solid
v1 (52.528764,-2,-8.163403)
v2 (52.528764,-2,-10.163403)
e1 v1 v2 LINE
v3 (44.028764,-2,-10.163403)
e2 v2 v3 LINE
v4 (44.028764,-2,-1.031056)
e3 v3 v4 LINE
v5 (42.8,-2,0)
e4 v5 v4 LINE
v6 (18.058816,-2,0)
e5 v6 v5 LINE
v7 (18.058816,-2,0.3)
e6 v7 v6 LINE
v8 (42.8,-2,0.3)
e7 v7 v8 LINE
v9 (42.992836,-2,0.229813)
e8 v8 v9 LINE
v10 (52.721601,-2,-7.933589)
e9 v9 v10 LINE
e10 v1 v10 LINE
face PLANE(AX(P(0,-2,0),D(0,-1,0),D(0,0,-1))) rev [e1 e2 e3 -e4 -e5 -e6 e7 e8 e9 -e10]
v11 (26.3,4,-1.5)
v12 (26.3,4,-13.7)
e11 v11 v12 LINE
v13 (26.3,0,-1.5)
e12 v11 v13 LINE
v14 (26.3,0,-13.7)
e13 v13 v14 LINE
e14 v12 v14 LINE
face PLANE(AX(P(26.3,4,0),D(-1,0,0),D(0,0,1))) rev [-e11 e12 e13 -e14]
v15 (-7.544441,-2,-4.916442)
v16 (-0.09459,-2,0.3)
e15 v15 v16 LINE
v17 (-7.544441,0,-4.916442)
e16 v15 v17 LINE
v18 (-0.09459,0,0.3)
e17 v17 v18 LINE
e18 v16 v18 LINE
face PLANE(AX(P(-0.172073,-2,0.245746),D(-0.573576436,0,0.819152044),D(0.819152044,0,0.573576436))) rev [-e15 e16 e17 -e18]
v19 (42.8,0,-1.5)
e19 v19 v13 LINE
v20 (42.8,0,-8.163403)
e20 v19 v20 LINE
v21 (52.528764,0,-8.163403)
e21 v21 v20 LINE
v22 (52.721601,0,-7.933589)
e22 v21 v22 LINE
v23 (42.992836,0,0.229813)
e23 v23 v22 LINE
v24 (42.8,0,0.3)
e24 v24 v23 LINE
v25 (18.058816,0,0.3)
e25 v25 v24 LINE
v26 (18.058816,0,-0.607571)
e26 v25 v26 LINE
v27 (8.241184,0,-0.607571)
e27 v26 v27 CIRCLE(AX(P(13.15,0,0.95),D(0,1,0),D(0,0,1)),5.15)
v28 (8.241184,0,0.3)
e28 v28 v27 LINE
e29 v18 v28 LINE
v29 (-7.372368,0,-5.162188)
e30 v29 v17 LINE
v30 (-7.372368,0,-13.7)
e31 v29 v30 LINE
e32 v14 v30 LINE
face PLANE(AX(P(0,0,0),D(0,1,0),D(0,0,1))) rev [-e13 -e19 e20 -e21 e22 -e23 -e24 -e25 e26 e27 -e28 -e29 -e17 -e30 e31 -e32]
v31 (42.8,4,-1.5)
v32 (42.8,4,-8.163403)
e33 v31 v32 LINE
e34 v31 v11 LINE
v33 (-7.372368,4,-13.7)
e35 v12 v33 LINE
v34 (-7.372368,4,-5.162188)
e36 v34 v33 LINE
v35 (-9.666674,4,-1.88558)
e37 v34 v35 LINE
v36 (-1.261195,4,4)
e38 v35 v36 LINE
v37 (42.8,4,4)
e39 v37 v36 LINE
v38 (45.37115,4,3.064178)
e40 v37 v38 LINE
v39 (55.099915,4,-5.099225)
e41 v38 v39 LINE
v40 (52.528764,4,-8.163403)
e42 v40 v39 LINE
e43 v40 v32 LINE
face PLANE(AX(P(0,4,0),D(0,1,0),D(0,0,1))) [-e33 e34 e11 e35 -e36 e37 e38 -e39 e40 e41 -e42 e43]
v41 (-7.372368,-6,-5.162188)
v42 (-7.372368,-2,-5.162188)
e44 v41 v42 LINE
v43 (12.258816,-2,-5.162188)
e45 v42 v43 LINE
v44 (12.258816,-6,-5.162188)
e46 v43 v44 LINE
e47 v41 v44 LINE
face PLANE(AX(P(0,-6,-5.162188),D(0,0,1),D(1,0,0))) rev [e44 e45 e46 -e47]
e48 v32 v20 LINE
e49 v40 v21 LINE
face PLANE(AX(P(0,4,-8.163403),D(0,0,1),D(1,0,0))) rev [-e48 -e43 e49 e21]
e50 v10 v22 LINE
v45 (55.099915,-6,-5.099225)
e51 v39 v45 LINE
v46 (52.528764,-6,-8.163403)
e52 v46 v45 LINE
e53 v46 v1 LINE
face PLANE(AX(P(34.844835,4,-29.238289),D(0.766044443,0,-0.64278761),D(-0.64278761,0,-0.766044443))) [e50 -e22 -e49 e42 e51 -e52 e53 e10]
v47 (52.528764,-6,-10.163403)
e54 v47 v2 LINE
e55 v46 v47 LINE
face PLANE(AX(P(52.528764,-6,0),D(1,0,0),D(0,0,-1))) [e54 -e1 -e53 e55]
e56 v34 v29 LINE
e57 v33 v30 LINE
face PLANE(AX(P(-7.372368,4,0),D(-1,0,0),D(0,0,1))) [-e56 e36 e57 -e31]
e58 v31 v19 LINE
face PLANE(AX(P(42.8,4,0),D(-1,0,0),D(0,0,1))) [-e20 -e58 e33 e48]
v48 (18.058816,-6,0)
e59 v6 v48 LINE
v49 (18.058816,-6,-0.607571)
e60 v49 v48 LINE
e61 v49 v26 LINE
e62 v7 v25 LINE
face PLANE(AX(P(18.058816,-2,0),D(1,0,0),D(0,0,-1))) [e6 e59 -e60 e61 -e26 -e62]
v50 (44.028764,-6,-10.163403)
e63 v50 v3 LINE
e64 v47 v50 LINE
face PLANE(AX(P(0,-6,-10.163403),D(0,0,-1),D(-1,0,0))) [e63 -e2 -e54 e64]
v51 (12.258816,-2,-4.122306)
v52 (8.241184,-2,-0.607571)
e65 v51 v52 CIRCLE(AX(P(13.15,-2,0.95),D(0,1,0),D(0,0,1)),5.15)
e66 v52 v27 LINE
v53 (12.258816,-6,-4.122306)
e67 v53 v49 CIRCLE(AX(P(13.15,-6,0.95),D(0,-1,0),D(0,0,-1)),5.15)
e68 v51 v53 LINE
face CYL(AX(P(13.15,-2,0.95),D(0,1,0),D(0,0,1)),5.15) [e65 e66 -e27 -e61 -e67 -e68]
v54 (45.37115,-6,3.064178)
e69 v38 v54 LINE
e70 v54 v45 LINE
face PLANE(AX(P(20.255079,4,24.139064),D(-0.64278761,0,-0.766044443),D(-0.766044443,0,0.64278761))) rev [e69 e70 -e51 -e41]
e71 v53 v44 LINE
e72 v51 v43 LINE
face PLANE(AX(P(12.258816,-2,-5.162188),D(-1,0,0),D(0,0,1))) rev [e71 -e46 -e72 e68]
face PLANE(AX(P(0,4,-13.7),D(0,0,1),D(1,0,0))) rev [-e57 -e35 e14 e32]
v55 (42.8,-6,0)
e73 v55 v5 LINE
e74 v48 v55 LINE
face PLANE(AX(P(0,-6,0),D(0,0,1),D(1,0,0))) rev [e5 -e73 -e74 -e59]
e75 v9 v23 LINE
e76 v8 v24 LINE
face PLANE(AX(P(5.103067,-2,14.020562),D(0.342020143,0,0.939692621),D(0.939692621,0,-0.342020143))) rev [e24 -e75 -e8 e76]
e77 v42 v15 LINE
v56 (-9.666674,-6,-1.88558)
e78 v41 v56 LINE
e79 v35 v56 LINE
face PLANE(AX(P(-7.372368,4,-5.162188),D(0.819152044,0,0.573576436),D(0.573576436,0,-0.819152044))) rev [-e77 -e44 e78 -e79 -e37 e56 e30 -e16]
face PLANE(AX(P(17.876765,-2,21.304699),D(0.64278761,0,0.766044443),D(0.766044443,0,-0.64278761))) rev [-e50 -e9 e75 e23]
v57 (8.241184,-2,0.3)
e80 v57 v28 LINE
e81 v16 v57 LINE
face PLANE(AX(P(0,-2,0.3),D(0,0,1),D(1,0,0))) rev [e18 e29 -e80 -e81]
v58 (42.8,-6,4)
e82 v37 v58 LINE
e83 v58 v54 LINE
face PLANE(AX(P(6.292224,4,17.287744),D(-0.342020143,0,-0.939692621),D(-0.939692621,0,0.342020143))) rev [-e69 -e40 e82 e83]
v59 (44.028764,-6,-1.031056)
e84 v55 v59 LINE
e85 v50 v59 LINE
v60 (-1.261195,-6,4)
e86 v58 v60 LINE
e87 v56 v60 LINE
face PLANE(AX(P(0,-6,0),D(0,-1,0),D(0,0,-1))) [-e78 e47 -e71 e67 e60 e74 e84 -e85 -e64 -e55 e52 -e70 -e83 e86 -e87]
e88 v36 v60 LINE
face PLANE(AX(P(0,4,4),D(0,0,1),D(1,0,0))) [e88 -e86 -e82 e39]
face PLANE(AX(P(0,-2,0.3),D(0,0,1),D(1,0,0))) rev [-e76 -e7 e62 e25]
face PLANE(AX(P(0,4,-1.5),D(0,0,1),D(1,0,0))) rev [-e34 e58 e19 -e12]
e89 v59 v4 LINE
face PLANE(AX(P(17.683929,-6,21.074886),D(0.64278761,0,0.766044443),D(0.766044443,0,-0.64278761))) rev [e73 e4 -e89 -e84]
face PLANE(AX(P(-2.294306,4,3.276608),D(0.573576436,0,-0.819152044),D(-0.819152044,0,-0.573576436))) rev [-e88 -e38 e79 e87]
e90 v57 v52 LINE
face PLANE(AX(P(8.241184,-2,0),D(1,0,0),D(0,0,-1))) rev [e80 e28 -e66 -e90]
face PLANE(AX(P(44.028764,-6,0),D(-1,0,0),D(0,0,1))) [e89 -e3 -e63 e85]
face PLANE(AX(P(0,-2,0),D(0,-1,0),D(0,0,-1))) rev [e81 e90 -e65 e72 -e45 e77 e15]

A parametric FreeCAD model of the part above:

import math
import FreeCAD as App
import Part
import Sketcher
from FreeCAD import Vector
Q = App.Units.Quantity

doc = App.newDocument("Part")
params = doc.addObject("Spreadsheet::Sheet", "Params")
for row, (alias, value) in enumerate([
    ("sketch1_width", "16.5 mm"),
    ("sketch1_height", "12.2 mm"),
    ("sketch1_length", "0.3 mm"),
    ("sketch1_length2", "3.7 mm"),
    ("sketch1_length3", "12.7 mm"),
    ("pad1_length", "4 mm"),
    ("sketch2_radius", "5.15 mm"),
    ("sketch2_length", "3.7 mm"),
    ("sketch2_length2", "12.7 mm"),
    ("pad2_length", "2 mm"),
    ("sketch3_height", "2 mm"),
    ("sketch3_width", "8.5 mm"),
    ("sketch3_length", "0.3 mm"),
    ("sketch3_length2", "3.7 mm"),
    ("sketch3_length3", "12.7 mm"),
    ("pad3_length", "4 mm"),
    ("sketch4_width", "6 mm"),
    ("pocket1_length", "4 mm"),
    ("sketch5_radius", "5.15 mm"),
    ("sketch5_width", "5.8 mm"),
    ("pad4_length", "4 mm"),
], start=1):
    params.set(f"A{row}", alias)
    params.set(f"B{row}", "=" + value)
    params.setAlias(f"B{row}", alias)

body = doc.addObject("PartDesign::Body", "Body")

sketch1 = body.newObject("Sketcher::SketchObject", "Sketch")
sketch1.AttachmentSupport = (doc.getObject("XZ_Plane"), [""])
sketch1.MapMode = "FlatFace"
sketch1.addGeometry([
    Part.LineSegment(Vector(52.53, -8.16, 0), Vector(42.8, -8.16, 0)),
    Part.LineSegment(Vector(42.8, -8.16, 0), Vector(42.8, -1.5, 0)),
    Part.LineSegment(Vector(42.8, -1.5, 0), Vector(26.3, -1.5, 0)),
    Part.LineSegment(Vector(26.3, -1.5, 0), Vector(26.3, -13.7, 0)),
    Part.LineSegment(Vector(26.3, -13.7, 0), Vector(-7.37, -13.7, 0)),
    Part.LineSegment(Vector(-7.37, -13.7, 0), Vector(-7.37, -5.16, 0)),
    Part.LineSegment(Vector(-7.37, -5.16, 0), Vector(-7.54, -4.92, 0)),
    Part.LineSegment(Vector(-7.54, -4.92, 0), Vector(-9.67, -1.89, 0)),
    Part.LineSegment(Vector(-9.67, -1.89, 0), Vector(-1.26, 4, 0)),
    Part.LineSegment(Vector(-1.26, 4, 0), Vector(42.8, 4, 0)),
    Part.LineSegment(Vector(42.8, 4, 0), Vector(45.37, 3.06, 0)),
    Part.LineSegment(Vector(45.37, 3.06, 0), Vector(55.1, -5.1, 0)),
    Part.LineSegment(Vector(55.1, -5.1, 0), Vector(52.72, -7.93, 0)),
    Part.LineSegment(Vector(52.72, -7.93, 0), Vector(52.53, -8.16, 0)),
], False)
sketch1.addConstraint([
    Sketcher.Constraint("Coincident", 0, 2, 1, 1),
    Sketcher.Constraint("Coincident", 1, 2, 2, 1),
    Sketcher.Constraint("Coincident", 2, 2, 3, 1),
    Sketcher.Constraint("Coincident", 3, 2, 4, 1),
    Sketcher.Constraint("Coincident", 4, 2, 5, 1),
    Sketcher.Constraint("Coincident", 5, 2, 6, 1),
    Sketcher.Constraint("Coincident", 6, 2, 7, 1),
    Sketcher.Constraint("Coincident", 7, 2, 8, 1),
    Sketcher.Constraint("Coincident", 8, 2, 9, 1),
    Sketcher.Constraint("Coincident", 9, 2, 10, 1),
    Sketcher.Constraint("Coincident", 10, 2, 11, 1),
    Sketcher.Constraint("Coincident", 11, 2, 12, 1),
    Sketcher.Constraint("Coincident", 12, 2, 13, 1),
    Sketcher.Constraint("Coincident", 13, 2, 0, 1),
    Sketcher.Constraint("Horizontal", 0),
    Sketcher.Constraint("Vertical", 1),
    Sketcher.Constraint("Horizontal", 2),
    Sketcher.Constraint("Vertical", 3),
    Sketcher.Constraint("Horizontal", 4),
    Sketcher.Constraint("Vertical", 5),
    Sketcher.Constraint("Horizontal", 9),
    Sketcher.Constraint("Parallel", 6, 7),
    Sketcher.Constraint("Perpendicular", 7, 8),
    Sketcher.Constraint("Perpendicular", 11, 12),
    Sketcher.Constraint("Parallel", 12, 13),
    Sketcher.Constraint("Vertical", 1, 2, 9, 2),
    Sketcher.Constraint("Equal", 7, 12),
    Sketcher.Constraint("Equal", 6, 13),
    Sketcher.Constraint("Angle", 6, Q("125 deg")),
    Sketcher.Constraint("Angle", 10, Q("-20 deg")),
    Sketcher.Constraint("Angle", 11, Q("-40 deg")),
    Sketcher.Constraint("DistanceX", 2, 2, 2, 1, 16.5),
    Sketcher.Constraint("DistanceY", 3, 2, 3, 1, 12.2),
    Sketcher.Constraint("DistanceY", -1, 1, 8, 2, 4.0),
    Sketcher.Constraint("Distance", 6, 0.3),
    Sketcher.Constraint("Distance", 7, 3.7),
    Sketcher.Constraint("Distance", 11, 12.7),
    Sketcher.Constraint("DistanceX", -1, 1, 0, 2, 42.8),
    Sketcher.Constraint("DistanceY", 1, 2, -1, 1, 1.5),
    Sketcher.Constraint("DistanceX", 4, 2, 4, 1, 33.672368),
    Sketcher.Constraint("DistanceX", -1, 1, 12, 2, 52.721601),
    Sketcher.Constraint("DistanceX", 9, 1, 9, 2, 44.061195),
])
sketch1.setExpression("Constraints[31]", "Params.sketch1_width")
sketch1.setExpression("Constraints[32]", "Params.sketch1_height")
sketch1.setExpression("Constraints[34]", "Params.sketch1_length")
sketch1.setExpression("Constraints[35]", "Params.sketch1_length2")
sketch1.setExpression("Constraints[36]", "Params.sketch1_length3")
pad1 = body.newObject("PartDesign::Pad", "Pad")
pad1.Profile = sketch1
pad1.setExpression("Length", "Params.pad1_length")
pad1.Reversed = True

sketch2 = body.newObject("Sketcher::SketchObject", "Sketch001")
sketch2.AttachmentSupport = (doc.getObject("XZ_Plane"), [""])
sketch2.MapMode = "FlatFace"
sketch2.addGeometry([
    Part.LineSegment(Vector(-0.09, 0.3, 0), Vector(-7.54, -4.92, 0)),
    Part.LineSegment(Vector(-7.54, -4.92, 0), Vector(-9.67, -1.89, 0)),
    Part.LineSegment(Vector(-9.67, -1.89, 0), Vector(-1.26, 4, 0)),
    Part.LineSegment(Vector(-1.26, 4, 0), Vector(42.8, 4, 0)),
    Part.LineSegment(Vector(42.8, 4, 0), Vector(45.37, 3.06, 0)),
    Part.LineSegment(Vector(45.37, 3.06, 0), Vector(55.1, -5.1, 0)),
    Part.LineSegment(Vector(55.1, -5.1, 0), Vector(52.72, -7.93, 0)),
    Part.LineSegment(Vector(52.72, -7.93, 0), Vector(43.64, -0.31, 0)),
    Part.LineSegment(Vector(43.64, -0.31, 0), Vector(42.99, 0.23, 0)),
    Part.LineSegment(Vector(42.99, 0.23, 0), Vector(42.8, 0.3, 0)),
    Part.LineSegment(Vector(42.8, 0.3, 0), Vector(18.06, 0.3, 0)),
    Part.LineSegment(Vector(18.06, 0.3, 0), Vector(18.06, -0.61, 0)),
    Part.ArcOfCircle(Part.Circle(Vector(13.15, 0.95, 0), Vector(0, 0, 1), 5.15), math.radians(-90), math.radians(-18)),
    Part.ArcOfCircle(Part.Circle(Vector(13.15, 0.95, 0), Vector(0, 0, 1), 5.15), math.radians(-162), math.radians(-90)),
    Part.LineSegment(Vector(8.24, -0.61, 0), Vector(8.24, 0.3, 0)),
    Part.LineSegment(Vector(8.24, 0.3, 0), Vector(-0.09, 0.3, 0)),
], False)
sketch2.addConstraint([
    Sketcher.Constraint("Coincident", 0, 2, 1, 1),
    Sketcher.Constraint("Coincident", 1, 2, 2, 1),
    Sketcher.Constraint("Coincident", 2, 2, 3, 1),
    Sketcher.Constraint("Coincident", 3, 2, 4, 1),
    Sketcher.Constraint("Coincident", 4, 2, 5, 1),
    Sketcher.Constraint("Coincident", 5, 2, 6, 1),
    Sketcher.Constraint("Coincident", 6, 2, 7, 1),
    Sketcher.Constraint("Coincident", 7, 2, 8, 1),
    Sketcher.Constraint("Coincident", 8, 2, 9, 1),
    Sketcher.Constraint("Coincident", 9, 2, 10, 1),
    Sketcher.Constraint("Coincident", 10, 2, 11, 1),
    Sketcher.Constraint("Coincident", 11, 2, 12, 2),
    Sketcher.Constraint("Tangent", 12, 1, 13, 2),
    Sketcher.Constraint("Coincident", 13, 1, 14, 1),
    Sketcher.Constraint("Coincident", 14, 2, 15, 1),
    Sketcher.Constraint("Coincident", 15, 2, 0, 1),
    Sketcher.Constraint("Horizontal", 3),
    Sketcher.Constraint("Horizontal", 10),
    Sketcher.Constraint("Vertical", 11),
    Sketcher.Constraint("Vertical", 14),
    Sketcher.Constraint("Horizontal", 15),
    Sketcher.Constraint("Equal", 12, 13),
    Sketcher.Constraint("Perpendicular", 0, 1),
    Sketcher.Constraint("Perpendicular", 1, 2),
    Sketcher.Constraint("Perpendicular", 5, 6),
    Sketcher.Constraint("Perpendicular", 6, 7),
    Sketcher.Constraint("Parallel", 7, 8),
    Sketcher.Constraint("Parallel", 4, 9),
    Sketcher.Constraint("Horizontal", 11, 2, 13, 1),
    Sketcher.Constraint("Horizontal", 10, 2, 14, 2),
    Sketcher.Constraint("Vertical", 3, 2, 9, 2),
    Sketcher.Constraint("Vertical", 13, 3, 12, 1),
    Sketcher.Constraint("Equal", 1, 6),
    Sketcher.Constraint("Angle", 0, Q("-145 deg")),
    Sketcher.Constraint("Angle", 4, Q("-20 deg")),
    Sketcher.Constraint("Angle", 5, Q("-40 deg")),
    Sketcher.Constraint("Radius", 12, 5.15),
    Sketcher.Constraint("DistanceY", -1, 1, 2, 2, 4.0),
    Sketcher.Constraint("Distance", 1, 3.7),
    Sketcher.Constraint("Distance", 5, 12.7),
    Sketcher.Constraint("DistanceX", -1, 1, 3, 2, 42.8),
    Sketcher.Constraint("DistanceY", -1, 1, 9, 2, 0.3),
    Sketcher.Constraint("DistanceY", 12, 1, -1, 1, 4.2),
    Sketcher.Constraint("DistanceX", -1, 1, 12, 3, 13.15),
    Sketcher.Constraint("DistanceY", 11, 2, 11, 1, 0.907571),
    Sketcher.Constraint("DistanceX", -1, 1, 6, 2, 52.721601),
    Sketcher.Constraint("DistanceY", 6, 2, 7, 2, 7.620798),
    Sketcher.Constraint("Distance", 0, 9.09459),
    Sketcher.Constraint("DistanceX", 3, 1, 3, 2, 44.061195),
])
sketch2.setExpression("Constraints[36]", "Params.sketch2_radius")
sketch2.setExpression("Constraints[38]", "Params.sketch2_length")
sketch2.setExpression("Constraints[39]", "Params.sketch2_length2")
pad2 = body.newObject("PartDesign::Pad", "Pad001")
pad2.Profile = sketch2
pad2.setExpression("Length", "Params.pad2_length")

sketch3 = body.newObject("Sketcher::SketchObject", "Sketch002")
sketch3.AttachmentSupport = (doc.getObject("XZ_Plane"), [""])
sketch3.MapMode = "FlatFace"
sketch3.AttachmentOffset = App.Placement(Vector(0, 0, 2), App.Rotation())
sketch3.addGeometry([
    Part.LineSegment(Vector(18.26, -5.16, 0), Vector(18.26, 0, 0)),
    Part.LineSegment(Vector(18.26, 0, 0), Vector(42.8, 0, 0)),
    Part.LineSegment(Vector(42.8, 0, 0), Vector(44.03, -1.03, 0)),
    Part.LineSegment(Vector(44.03, -1.03, 0), Vector(44.03, -10.16, 0)),
    Part.LineSegment(Vector(44.03, -10.16, 0), Vector(52.53, -10.16, 0)),
    Part.LineSegment(Vector(52.53, -10.16, 0), Vector(52.53, -8.16, 0)),
    Part.LineSegment(Vector(52.53, -8.16, 0), Vector(52.72, -7.93, 0)),
    Part.LineSegment(Vector(52.72, -7.93, 0), Vector(55.1, -5.1, 0)),
    Part.LineSegment(Vector(55.1, -5.1, 0), Vector(45.37, 3.06, 0)),
    Part.LineSegment(Vector(45.37, 3.06, 0), Vector(42.8, 4, 0)),
    Part.LineSegment(Vector(42.8, 4, 0), Vector(-1.26, 4, 0)),
    Part.LineSegment(Vector(-1.26, 4, 0), Vector(-9.67, -1.89, 0)),
    Part.LineSegment(Vector(-9.67, -1.89, 0), Vector(-7.54, -4.92, 0)),
    Part.LineSegment(Vector(-7.54, -4.92, 0), Vector(-7.37, -5.16, 0)),
    Part.LineSegment(Vector(-7.37, -5.16, 0), Vector(18.26, -5.16, 0)),
], False)
sketch3.addConstraint([
    Sketcher.Constraint("Coincident", 0, 2, 1, 1),
    Sketcher.Constraint("Coincident", 1, 2, 2, 1),
    Sketcher.Constraint("Coincident", 2, 2, 3, 1),
    Sketcher.Constraint("Coincident", 3, 2, 4, 1),
    Sketcher.Constraint("Coincident", 4, 2, 5, 1),
    Sketcher.Constraint("Coincident", 5, 2, 6, 1),
    Sketcher.Constraint("Coincident", 6, 2, 7, 1),
    Sketcher.Constraint("Coincident", 7, 2, 8, 1),
    Sketcher.Constraint("Coincident", 8, 2, 9, 1),
    Sketcher.Constraint("Coincident", 9, 2, 10, 1),
    Sketcher.Constraint("Coincident", 10, 2, 11, 1),
    Sketcher.Constraint("Coincident", 11, 2, 12, 1),
    Sketcher.Constraint("Coincident", 12, 2, 13, 1),
    Sketcher.Constraint("Coincident", 13, 2, 14, 1),
    Sketcher.Constraint("Coincident", 14, 2, 0, 1),
    Sketcher.Constraint("Vertical", 0),
    Sketcher.Constraint("Horizontal", 1),
    Sketcher.Constraint("Vertical", 3),
    Sketcher.Constraint("Horizontal", 4),
    Sketcher.Constraint("Vertical", 5),
    Sketcher.Constraint("Horizontal", 10),
    Sketcher.Constraint("Horizontal", 14),
    Sketcher.Constraint("PointOnObject", 0, 2, -1),
    Sketcher.Constraint("Perpendicular", 2, 6),
    Sketcher.Constraint("Parallel", 6, 7),
    Sketcher.Constraint("Perpendicular", 7, 8),
    Sketcher.Constraint("Perpendicular", 11, 12),
    Sketcher.Constraint("Parallel", 12, 13),
    Sketcher.Constraint("Vertical", 1, 2, 9, 2),
    Sketcher.Constraint("Equal", 7, 12),
    Sketcher.Constraint("Equal", 6, 13),
    Sketcher.Constraint("DistanceY", 5, 1, 5, 2, 2.0),
    Sketcher.Constraint("Angle", 2, Q("-40 deg")),
    Sketcher.Constraint("Angle", 9, Q("160 deg")),
    Sketcher.Constraint("Angle", 11, Q("-145 deg")),
    Sketcher.Constraint("DistanceX", 4, 1, 4, 2, 8.5),
    Sketcher.Constraint("DistanceY", -1, 1, 9, 2, 4.0),
    Sketcher.Constraint("Distance", 6, 0.3),
    Sketcher.Constraint("Distance", 7, 3.7),
    Sketcher.Constraint("Distance", 8, 12.7),
    Sketcher.Constraint("DistanceX", -1, 1, 1, 2, 42.8),
    Sketcher.Constraint("DistanceX", -1, 1, 6, 2, 52.721601),
    Sketcher.Constraint("DistanceX", 1, 1, 1, 2, 24.541184),
    Sketcher.Constraint("DistanceX", 10, 2, 10, 1, 44.061195),
    Sketcher.Constraint("DistanceX", 14, 1, 14, 2, 25.631184),
])
sketch3.setExpression("Constraints[31]", "Params.sketch3_height")
sketch3.setExpression("Constraints[35]", "Params.sketch3_width")
sketch3.setExpression("Constraints[37]", "Params.sketch3_length")
sketch3.setExpression("Constraints[38]", "Params.sketch3_length2")
sketch3.setExpression("Constraints[39]", "Params.sketch3_length3")
pad3 = body.newObject("PartDesign::Pad", "Pad002")
pad3.Profile = sketch3
pad3.setExpression("Length", "Params.pad3_length")

sketch4 = body.newObject("Sketcher::SketchObject", "Sketch003")
sketch4.AttachmentSupport = (doc.getObject("XZ_Plane"), [""])
sketch4.MapMode = "FlatFace"
sketch4.AttachmentOffset = App.Placement(Vector(0, 0, 6), App.Rotation())
sketch4.addGeometry([
    Part.LineSegment(Vector(18, 0, 0), Vector(12, 0, 0)),
    Part.LineSegment(Vector(12, 0, 0), Vector(12, -5, 0)),
    Part.LineSegment(Vector(12, -5, 0), Vector(18, -5, 0)),
    Part.LineSegment(Vector(18, -5, 0), Vector(18, 0, 0)),
], False)
sketch4.addConstraint([
    Sketcher.Constraint("Coincident", 0, 2, 1, 1),
    Sketcher.Constraint("Coincident", 1, 2, 2, 1),
    Sketcher.Constraint("Coincident", 2, 2, 3, 1),
    Sketcher.Constraint("Coincident", 3, 2, 0, 1),
    Sketcher.Constraint("Horizontal", 0),
    Sketcher.Constraint("Vertical", 1),
    Sketcher.Constraint("Vertical", 3),
    Sketcher.Constraint("PointOnObject", 0, 2, -1),
    Sketcher.Constraint("DistanceX", 0, 2, 0, 1, 6.0),
    Sketcher.Constraint("DistanceY", 1, 2, 1, 1, 5.162188),
    Sketcher.Constraint("DistanceY", 3, 1, 3, 2, 5.190707),
    Sketcher.Constraint("DistanceX", -1, 1, 0, 2, 12.258816),
])
sketch4.setExpression("Constraints[8]", "Params.sketch4_width")
pocket1 = body.newObject("PartDesign::Pocket", "Pocket")
pocket1.Profile = sketch4
pocket1.setExpression("Length", "Params.pocket1_length")

sketch5 = body.newObject("Sketcher::SketchObject", "Sketch004")
sketch5.AttachmentSupport = (doc.getObject("XZ_Plane"), [""])
sketch5.MapMode = "FlatFace"
sketch5.AttachmentOffset = App.Placement(Vector(0, 0, 2), App.Rotation())
sketch5.addGeometry([
    Part.LineSegment(Vector(18.1, -0.6, 0), Vector(18.1, 0, 0)),
    Part.LineSegment(Vector(18.1, 0, 0), Vector(12.3, 0, 0)),
    Part.LineSegment(Vector(12.3, 0, 0), Vector(12.3, -4.1, 0)),
    Part.ArcOfCircle(Part.Circle(Vector(13.2, 1, 0), Vector(0, 0, 1), 5.2), math.radians(-100), math.radians(-18)),
], False)
sketch5.addConstraint([
    Sketcher.Constraint("Coincident", 0, 2, 1, 1),
    Sketcher.Constraint("Coincident", 1, 2, 2, 1),
    Sketcher.Constraint("Coincident", 2, 2, 3, 1),
    Sketcher.Constraint("Coincident", 3, 2, 0, 1),
    Sketcher.Constraint("Vertical", 0),
    Sketcher.Constraint("Horizontal", 1),
    Sketcher.Constraint("Vertical", 2),
    Sketcher.Constraint("PointOnObject", 0, 2, -1),
    Sketcher.Constraint("Radius", 3, 5.15),
    Sketcher.Constraint("DistanceX", 1, 2, 1, 1, 5.8),
    Sketcher.Constraint("DistanceX", -1, 1, 3, 3, 13.15),
    Sketcher.Constraint("DistanceY", -1, 1, 3, 3, 0.95),
    Sketcher.Constraint("DistanceY", 0, 1, 0, 2, 0.607571),
])
sketch5.setExpression("Constraints[8]", "Params.sketch5_radius")
sketch5.setExpression("Constraints[9]", "Params.sketch5_width")
pad4 = body.newObject("PartDesign::Pad", "Pad003")
pad4.Profile = sketch5
pad4.setExpression("Length", "Params.pad4_length")

doc.recompute()
